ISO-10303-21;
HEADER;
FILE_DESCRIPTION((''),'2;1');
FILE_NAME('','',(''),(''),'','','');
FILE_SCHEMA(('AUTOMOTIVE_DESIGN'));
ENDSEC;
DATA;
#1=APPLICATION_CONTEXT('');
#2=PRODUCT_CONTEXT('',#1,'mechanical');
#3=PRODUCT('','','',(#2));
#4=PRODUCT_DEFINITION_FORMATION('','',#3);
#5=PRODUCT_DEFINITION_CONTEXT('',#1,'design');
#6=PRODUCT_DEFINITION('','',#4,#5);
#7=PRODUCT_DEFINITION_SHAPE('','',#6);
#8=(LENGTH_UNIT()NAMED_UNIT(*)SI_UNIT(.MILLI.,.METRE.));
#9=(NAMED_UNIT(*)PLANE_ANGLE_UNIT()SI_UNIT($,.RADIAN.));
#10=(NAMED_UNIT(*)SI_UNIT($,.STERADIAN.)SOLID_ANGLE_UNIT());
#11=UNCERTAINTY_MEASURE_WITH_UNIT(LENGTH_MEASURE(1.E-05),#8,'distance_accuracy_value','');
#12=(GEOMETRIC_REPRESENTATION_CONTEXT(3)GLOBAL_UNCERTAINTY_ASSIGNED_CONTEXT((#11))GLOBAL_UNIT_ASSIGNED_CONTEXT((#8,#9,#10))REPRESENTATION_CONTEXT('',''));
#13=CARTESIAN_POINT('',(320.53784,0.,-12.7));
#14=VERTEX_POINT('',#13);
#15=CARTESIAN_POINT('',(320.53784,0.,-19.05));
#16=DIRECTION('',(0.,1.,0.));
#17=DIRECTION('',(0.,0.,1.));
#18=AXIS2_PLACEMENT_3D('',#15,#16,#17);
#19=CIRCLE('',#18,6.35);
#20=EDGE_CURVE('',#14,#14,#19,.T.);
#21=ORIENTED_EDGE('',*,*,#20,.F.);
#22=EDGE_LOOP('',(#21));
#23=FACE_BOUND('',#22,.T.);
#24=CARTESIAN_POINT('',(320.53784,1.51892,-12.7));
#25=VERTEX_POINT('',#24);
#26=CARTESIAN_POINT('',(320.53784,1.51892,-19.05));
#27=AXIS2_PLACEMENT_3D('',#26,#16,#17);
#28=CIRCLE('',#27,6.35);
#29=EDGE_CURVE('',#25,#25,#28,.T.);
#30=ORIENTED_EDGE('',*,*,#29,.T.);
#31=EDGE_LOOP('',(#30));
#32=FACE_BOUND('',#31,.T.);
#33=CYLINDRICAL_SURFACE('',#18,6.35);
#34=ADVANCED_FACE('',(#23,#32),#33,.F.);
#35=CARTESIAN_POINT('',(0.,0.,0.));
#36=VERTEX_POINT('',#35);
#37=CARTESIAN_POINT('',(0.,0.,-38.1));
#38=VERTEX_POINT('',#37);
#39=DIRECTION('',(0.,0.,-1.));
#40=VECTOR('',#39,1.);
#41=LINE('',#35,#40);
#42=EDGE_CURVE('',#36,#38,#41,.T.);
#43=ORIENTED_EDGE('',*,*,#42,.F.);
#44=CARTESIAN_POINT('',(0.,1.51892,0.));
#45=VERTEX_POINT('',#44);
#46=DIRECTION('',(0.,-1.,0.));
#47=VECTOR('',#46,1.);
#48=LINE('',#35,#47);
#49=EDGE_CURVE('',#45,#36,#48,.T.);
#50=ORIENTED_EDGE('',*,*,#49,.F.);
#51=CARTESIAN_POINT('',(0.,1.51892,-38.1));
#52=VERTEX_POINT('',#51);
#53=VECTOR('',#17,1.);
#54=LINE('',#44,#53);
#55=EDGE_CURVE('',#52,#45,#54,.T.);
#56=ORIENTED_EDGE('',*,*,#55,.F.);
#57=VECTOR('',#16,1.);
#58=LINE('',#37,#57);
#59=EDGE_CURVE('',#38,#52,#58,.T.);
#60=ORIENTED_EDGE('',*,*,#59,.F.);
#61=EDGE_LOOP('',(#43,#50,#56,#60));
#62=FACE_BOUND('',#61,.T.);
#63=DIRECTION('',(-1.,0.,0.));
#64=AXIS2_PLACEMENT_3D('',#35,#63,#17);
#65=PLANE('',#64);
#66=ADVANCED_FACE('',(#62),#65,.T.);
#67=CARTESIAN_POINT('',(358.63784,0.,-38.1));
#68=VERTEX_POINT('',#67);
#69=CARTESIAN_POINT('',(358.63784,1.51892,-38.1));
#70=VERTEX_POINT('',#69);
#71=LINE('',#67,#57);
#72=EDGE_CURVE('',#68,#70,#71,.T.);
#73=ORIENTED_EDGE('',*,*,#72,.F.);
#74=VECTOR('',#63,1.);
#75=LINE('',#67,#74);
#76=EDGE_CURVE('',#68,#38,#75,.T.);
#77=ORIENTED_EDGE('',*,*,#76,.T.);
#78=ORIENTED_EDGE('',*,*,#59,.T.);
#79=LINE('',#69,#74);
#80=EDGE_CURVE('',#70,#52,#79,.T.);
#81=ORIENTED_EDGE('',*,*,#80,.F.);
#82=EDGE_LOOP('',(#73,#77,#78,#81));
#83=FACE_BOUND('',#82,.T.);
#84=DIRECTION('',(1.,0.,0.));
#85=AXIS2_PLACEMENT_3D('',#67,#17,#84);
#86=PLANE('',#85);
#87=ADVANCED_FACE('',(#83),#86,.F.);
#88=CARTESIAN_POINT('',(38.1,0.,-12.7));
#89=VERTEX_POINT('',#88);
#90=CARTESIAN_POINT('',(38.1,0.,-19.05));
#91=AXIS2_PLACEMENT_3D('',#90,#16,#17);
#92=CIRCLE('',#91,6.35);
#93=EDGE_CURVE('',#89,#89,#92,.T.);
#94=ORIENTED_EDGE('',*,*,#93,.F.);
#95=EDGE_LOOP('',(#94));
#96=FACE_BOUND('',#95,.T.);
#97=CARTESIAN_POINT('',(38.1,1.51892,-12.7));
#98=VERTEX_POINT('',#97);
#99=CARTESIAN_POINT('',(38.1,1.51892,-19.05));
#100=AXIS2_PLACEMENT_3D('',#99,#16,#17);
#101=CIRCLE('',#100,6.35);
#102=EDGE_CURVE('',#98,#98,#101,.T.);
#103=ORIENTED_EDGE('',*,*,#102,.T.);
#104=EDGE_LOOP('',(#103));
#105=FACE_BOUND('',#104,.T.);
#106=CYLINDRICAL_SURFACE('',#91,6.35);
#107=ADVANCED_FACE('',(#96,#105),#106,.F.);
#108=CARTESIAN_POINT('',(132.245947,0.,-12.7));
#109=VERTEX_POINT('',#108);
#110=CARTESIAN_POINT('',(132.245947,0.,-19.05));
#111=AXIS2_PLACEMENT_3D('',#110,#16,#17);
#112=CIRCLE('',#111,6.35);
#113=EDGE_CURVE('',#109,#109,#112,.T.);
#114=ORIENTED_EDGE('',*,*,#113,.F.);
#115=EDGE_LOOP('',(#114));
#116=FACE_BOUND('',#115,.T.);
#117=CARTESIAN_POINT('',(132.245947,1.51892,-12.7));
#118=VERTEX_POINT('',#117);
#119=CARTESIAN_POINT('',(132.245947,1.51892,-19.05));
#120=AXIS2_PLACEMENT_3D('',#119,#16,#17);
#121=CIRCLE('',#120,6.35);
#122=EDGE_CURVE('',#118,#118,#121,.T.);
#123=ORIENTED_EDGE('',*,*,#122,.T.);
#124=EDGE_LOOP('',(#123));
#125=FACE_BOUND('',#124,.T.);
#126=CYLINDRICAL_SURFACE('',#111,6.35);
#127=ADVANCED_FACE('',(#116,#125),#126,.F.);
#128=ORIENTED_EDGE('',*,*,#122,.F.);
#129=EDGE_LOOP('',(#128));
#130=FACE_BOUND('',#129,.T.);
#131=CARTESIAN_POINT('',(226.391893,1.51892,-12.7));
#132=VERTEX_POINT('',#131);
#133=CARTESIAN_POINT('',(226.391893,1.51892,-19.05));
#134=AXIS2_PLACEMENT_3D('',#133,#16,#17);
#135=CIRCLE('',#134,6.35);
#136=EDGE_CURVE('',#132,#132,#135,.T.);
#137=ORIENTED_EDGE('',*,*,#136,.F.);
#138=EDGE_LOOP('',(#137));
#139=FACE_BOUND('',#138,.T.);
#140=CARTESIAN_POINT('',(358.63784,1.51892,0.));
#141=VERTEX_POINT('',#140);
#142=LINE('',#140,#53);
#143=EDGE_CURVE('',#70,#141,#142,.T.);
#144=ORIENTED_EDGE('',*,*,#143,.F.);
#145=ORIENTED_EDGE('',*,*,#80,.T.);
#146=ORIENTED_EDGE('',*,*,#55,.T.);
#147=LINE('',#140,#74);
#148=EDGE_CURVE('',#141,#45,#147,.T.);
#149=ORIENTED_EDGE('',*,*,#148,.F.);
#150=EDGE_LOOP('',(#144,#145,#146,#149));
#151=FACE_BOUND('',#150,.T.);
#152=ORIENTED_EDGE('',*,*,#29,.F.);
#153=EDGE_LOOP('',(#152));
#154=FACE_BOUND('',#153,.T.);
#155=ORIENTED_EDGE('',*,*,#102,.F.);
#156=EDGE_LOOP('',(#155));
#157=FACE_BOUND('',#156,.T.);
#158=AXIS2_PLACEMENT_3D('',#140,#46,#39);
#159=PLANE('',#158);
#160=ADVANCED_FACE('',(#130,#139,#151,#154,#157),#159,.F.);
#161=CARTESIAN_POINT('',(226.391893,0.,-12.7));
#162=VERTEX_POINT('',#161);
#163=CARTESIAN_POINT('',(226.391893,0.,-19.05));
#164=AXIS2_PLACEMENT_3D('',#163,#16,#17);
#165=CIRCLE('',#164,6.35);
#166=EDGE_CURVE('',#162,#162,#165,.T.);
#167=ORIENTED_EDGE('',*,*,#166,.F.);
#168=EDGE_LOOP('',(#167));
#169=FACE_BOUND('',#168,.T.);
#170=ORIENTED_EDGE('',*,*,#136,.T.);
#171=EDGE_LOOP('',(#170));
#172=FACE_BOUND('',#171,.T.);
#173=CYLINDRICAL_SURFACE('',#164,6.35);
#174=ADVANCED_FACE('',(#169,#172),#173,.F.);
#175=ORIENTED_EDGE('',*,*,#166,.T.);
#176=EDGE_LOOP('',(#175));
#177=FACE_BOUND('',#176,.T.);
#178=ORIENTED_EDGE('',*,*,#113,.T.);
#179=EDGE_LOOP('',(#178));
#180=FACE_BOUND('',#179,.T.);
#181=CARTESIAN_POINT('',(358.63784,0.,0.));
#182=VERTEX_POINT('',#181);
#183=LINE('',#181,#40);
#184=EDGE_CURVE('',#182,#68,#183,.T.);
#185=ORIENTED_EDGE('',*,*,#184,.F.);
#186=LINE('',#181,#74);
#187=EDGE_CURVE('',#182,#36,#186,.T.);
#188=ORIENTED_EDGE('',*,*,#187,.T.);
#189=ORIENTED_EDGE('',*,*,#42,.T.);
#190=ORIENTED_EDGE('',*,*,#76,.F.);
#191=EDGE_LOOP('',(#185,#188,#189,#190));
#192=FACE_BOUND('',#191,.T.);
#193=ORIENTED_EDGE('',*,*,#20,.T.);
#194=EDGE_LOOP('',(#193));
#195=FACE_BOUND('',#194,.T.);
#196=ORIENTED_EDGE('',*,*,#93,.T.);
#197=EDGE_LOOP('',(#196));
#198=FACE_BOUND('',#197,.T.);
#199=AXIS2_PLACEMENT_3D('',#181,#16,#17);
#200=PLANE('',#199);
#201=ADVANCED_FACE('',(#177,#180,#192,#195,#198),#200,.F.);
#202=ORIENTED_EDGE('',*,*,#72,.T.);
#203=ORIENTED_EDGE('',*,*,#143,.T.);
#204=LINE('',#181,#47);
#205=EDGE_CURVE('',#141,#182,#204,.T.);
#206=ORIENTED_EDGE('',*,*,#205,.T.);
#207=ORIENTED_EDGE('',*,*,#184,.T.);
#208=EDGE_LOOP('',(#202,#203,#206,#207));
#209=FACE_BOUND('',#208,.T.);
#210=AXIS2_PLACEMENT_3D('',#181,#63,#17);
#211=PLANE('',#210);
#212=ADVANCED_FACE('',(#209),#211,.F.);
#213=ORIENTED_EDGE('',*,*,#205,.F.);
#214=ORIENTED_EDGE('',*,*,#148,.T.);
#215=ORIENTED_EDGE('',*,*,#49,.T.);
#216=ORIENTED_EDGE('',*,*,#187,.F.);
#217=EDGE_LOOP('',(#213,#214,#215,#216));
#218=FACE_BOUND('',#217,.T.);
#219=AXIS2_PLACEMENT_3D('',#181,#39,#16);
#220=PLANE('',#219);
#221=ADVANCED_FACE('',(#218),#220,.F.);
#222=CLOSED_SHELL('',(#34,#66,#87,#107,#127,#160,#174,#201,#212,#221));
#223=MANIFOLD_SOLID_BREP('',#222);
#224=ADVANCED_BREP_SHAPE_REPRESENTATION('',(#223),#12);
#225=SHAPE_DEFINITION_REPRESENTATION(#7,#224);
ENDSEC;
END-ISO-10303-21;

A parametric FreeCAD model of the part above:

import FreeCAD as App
import Part
import Sketcher
Q = App.Units.Quantity


def add_polygon(sketch, points):
    """Adds a closed chain of lines whose ends are joined by coincident constraints."""
    first, n = sketch.GeometryCount, len(points)
    for a, b in zip(points, points[1:] + points[:1]):
        sketch.addGeometry(Part.LineSegment(App.Vector(*a, 0), App.Vector(*b, 0)), False)
    for i in range(n):
        sketch.addConstraint(Sketcher.Constraint("Coincident", first + i, 2, first + (i + 1) % n, 1))

doc = App.newDocument("Part")
body = doc.addObject("PartDesign::Body", "Body")

# Sketch on YZ plane
sketch1 = body.newObject("Sketcher::SketchObject", "Sketch")
sketch1.AttachmentSupport = (doc.getObject("YZ_Plane"), [""])
sketch1.MapMode = "FlatFace"
add_polygon(sketch1, [(1.5, 0), (0, 0), (0, -38.1), (1.5, -38.1)])  # lines 0-3
sketch1.addConstraint(Sketcher.Constraint("Horizontal", 0))
sketch1.addConstraint(Sketcher.Constraint("Vertical", 1))
sketch1.addConstraint(Sketcher.Constraint("Horizontal", 2))
sketch1.addConstraint(Sketcher.Constraint("Vertical", 3))
sketch1.addConstraint(Sketcher.Constraint("Coincident", 0, 2, -1, 1))
sketch1.addConstraint(Sketcher.Constraint("DistanceY", 1, 2, 1, 1, Q("1.5 in")))
sketch1.addConstraint(Sketcher.Constraint("DistanceX", 0, 2, 0, 1, Q("0.0598 in")))
pad1 = body.newObject("PartDesign::Pad", "Pad")
pad1.Profile = sketch1
pad1.Length = Q("14.1196 in")

# Sketch on XZ plane
sketch2 = body.newObject("Sketcher::SketchObject", "Sketch001")
sketch2.AttachmentSupport = (doc.getObject("XZ_Plane"), [""])
sketch2.MapMode = "FlatFace"
sketch2.AttachmentOffset = App.Placement(App.Vector(0, 0, -0.0598 * 25.4), App.Rotation())
sketch2.addGeometry(Part.Circle(App.Vector(132, -19, 0), App.Vector(0, 0, 1), 6), False)
sketch2.addGeometry(Part.Circle(App.Vector(226, -19, 0), App.Vector(0, 0, 1), 6), False)
sketch2.addGeometry(Part.Circle(App.Vector(321, -19, 0), App.Vector(0, 0, 1), 6), False)
sketch2.addGeometry(Part.Circle(App.Vector(38, -19, 0), App.Vector(0, 0, 1), 6), False)
sketch2.addConstraint(Sketcher.Constraint("Equal", 0, 1))
sketch2.addConstraint(Sketcher.Constraint("Equal", 1, 2))
sketch2.addConstraint(Sketcher.Constraint("Equal", 2, 3))
sketch2.addConstraint(Sketcher.Constraint("Horizontal", 0, 3, 1, 3))
sketch2.addConstraint(Sketcher.Constraint("Horizontal", 1, 3, 2, 3))
sketch2.addConstraint(Sketcher.Constraint("Horizontal", 2, 3, 3, 3))
sketch2.addConstraint(Sketcher.Constraint("Diameter", 0, Q("0.5 in")))
sketch2.addConstraint(Sketcher.Constraint("DistanceX", -1, 1, 3, 3, Q("1.5 in")))
sketch2.addConstraint(Sketcher.Constraint("DistanceY", 0, 3, -1, 1, Q("0.75 in")))
sketch2.addConstraint(Sketcher.Constraint("DistanceX", -1, 1, 2, 3, Q("12.6196 in")))
sketch2.addConstraint(Sketcher.Constraint("DistanceX", -1, 1, 0, 3, 132.245947))
sketch2.addConstraint(Sketcher.Constraint("DistanceX", -1, 1, 1, 3, 226.391893))
pocket1 = body.newObject("PartDesign::Pocket", "Pocket")
pocket1.Profile = sketch2
pocket1.Type = "ThroughAll"
pocket1.Reversed = True

doc.recompute()
